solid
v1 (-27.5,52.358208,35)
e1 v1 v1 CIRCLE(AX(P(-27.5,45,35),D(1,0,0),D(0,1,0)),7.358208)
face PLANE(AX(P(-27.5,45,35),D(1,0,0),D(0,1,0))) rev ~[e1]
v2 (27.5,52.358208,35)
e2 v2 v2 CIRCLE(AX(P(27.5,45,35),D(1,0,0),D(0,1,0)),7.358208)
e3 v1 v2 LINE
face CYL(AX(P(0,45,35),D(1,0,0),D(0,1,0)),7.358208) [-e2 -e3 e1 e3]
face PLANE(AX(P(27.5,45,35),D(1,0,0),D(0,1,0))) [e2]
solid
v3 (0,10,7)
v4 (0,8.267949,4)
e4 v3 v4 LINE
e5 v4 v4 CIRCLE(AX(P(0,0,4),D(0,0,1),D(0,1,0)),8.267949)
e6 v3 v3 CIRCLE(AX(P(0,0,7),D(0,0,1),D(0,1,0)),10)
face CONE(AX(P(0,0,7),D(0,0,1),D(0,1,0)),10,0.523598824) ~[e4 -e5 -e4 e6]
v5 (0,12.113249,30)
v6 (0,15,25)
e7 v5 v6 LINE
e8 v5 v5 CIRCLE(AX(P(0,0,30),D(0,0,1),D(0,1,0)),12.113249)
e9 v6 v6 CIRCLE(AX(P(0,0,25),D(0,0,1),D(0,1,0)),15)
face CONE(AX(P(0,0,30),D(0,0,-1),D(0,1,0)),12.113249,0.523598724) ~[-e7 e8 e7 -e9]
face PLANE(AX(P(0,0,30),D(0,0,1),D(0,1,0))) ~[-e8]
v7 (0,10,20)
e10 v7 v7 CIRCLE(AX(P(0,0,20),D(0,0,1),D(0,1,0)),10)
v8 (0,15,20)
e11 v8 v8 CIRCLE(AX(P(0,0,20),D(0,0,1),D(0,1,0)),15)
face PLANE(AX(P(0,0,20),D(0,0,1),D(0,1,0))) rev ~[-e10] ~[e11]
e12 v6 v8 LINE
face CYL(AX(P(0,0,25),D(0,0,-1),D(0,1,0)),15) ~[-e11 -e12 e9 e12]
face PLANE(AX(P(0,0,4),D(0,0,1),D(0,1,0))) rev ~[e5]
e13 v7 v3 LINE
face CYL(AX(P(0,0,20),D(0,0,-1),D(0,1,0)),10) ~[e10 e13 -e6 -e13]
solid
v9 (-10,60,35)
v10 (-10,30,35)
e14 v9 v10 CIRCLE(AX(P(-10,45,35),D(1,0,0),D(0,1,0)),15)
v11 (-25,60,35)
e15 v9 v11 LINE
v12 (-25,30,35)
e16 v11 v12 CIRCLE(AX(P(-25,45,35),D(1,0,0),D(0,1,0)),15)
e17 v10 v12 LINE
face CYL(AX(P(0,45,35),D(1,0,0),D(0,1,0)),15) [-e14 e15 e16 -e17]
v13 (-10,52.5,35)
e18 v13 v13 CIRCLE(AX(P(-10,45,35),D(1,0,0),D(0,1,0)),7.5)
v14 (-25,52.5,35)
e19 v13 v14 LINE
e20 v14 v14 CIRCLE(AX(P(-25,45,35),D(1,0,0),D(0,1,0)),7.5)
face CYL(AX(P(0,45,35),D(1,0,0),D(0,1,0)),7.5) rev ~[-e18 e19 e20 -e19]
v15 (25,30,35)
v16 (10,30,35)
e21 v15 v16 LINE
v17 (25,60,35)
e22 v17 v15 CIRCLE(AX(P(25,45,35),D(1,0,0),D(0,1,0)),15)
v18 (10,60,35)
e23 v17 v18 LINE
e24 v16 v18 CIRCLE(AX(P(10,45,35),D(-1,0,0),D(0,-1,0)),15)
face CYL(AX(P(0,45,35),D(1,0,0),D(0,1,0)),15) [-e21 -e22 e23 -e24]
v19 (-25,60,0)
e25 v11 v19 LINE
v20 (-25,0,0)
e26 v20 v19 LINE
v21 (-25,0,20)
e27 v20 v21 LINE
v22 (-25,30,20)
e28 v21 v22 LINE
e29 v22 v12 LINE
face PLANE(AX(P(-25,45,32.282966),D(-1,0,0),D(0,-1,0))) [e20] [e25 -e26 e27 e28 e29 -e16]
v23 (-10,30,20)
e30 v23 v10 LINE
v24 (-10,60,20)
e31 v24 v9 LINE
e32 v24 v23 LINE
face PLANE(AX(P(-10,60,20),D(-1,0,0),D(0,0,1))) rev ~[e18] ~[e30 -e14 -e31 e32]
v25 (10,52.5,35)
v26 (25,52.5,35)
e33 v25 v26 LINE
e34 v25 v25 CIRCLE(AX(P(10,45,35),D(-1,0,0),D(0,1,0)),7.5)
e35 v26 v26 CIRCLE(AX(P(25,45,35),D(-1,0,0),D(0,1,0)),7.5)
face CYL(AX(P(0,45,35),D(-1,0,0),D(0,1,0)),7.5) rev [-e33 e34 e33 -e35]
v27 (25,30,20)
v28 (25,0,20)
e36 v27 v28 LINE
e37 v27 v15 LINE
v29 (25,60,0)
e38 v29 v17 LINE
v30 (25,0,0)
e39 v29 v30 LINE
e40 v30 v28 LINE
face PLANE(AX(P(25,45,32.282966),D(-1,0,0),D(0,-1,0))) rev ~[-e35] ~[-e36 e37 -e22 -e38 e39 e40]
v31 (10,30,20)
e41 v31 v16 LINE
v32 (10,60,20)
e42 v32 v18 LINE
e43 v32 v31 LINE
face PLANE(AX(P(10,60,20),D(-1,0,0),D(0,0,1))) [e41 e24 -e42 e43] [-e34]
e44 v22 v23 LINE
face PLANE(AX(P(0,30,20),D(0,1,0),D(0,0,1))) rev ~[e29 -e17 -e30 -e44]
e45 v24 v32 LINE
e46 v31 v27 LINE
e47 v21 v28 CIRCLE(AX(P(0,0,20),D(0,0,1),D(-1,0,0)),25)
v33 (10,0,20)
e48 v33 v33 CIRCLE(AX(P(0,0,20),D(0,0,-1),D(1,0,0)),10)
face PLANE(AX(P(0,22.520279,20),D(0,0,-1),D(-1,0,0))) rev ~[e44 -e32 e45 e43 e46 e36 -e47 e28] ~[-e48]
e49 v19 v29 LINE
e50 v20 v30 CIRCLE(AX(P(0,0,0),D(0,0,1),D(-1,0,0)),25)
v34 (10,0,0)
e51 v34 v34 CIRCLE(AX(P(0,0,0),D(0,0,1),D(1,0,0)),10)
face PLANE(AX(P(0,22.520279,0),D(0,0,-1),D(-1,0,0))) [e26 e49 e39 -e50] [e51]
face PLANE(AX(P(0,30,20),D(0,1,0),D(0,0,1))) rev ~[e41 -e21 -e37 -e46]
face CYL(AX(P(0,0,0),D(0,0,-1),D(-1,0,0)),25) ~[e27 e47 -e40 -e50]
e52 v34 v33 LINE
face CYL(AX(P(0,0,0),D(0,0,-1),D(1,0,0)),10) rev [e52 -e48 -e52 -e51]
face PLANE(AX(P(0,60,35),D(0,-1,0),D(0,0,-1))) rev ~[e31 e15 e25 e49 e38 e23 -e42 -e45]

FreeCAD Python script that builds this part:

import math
import FreeCAD as App
import Part
import Sketcher
from FreeCAD import Vector
Q = App.Units.Quantity


def add_polygon(sketch, points):
    """Adds a closed chain of lines whose ends are joined by coincident constraints."""
    first, n = sketch.GeometryCount, len(points)
    for a, b in zip(points, points[1:] + points[:1]):
        sketch.addGeometry(Part.LineSegment(App.Vector(*a, 0), App.Vector(*b, 0)), False)
    for i in range(n):
        sketch.addConstraint(Sketcher.Constraint("Coincident", first + i, 2, first + (i + 1) % n, 1))

doc = App.newDocument("Part")
params = doc.addObject("Spreadsheet::Sheet", "Params")
for row, (alias, value) in enumerate([
    ("sketch1_diameter", "20 mm"),
    ("sketch1_radius", "25 mm"),
    ("sketch1_height", "60 mm"),
    ("pad1_length", "20 mm"),
    ("sketch2_radius", "15 mm"),
    ("sketch2_height", "15 mm"),
    ("pad2_length", "50 mm"),
    ("sketch3_width", "20 mm"),
    ("sketch3_height", "30 mm"),
    ("sketch4_diameter", "15 mm"),
    ("pad3_length", "55 mm"),
    ("sketch6_width", "5 mm"),
    ("sketch6_height", "26 mm"),
    ("sketch6_height2", "13 mm"),
    ("revolution_angle", "360 deg"),
], start=1):
    params.set(f"A{row}", alias)
    params.set(f"B{row}", "=" + value)
    params.setAlias(f"B{row}", alias)

body = doc.addObject("PartDesign::Body", "Body")

# Sketch on XY plane
sketch1 = doc.addObject("Sketcher::SketchObject", "Sketch")
body.addObject(sketch1)
sketch1.AttachmentSupport = (doc.XY_Plane, [""])
sketch1.MapMode = "FlatFace"
sketch1.addGeometry(Part.LineSegment(Vector(-25, 60, 0), Vector(-25, 0, 0)), False)
sketch1.addGeometry(Part.ArcOfCircle(Part.Circle(Vector(0, 0, 0), Vector(0, 0, 1), 25), math.radians(180), math.radians(360)), False)
sketch1.addGeometry(Part.LineSegment(Vector(25, 0, 0), Vector(25, 60, 0)), False)
sketch1.addGeometry(Part.LineSegment(Vector(25, 60, 0), Vector(-25, 60, 0)), False)
sketch1.addGeometry(Part.Circle(Vector(0, 0, 0), Vector(0, 0, 1), 10), False)
sketch1.addConstraint(Sketcher.Constraint("Tangent", 0, 2, 1, 1))
sketch1.addConstraint(Sketcher.Constraint("Tangent", 1, 2, 2, 1))
sketch1.addConstraint(Sketcher.Constraint("Coincident", 2, 2, 3, 1))
sketch1.addConstraint(Sketcher.Constraint("Coincident", 3, 2, 0, 1))
sketch1.addConstraint(Sketcher.Constraint("Vertical", 0))
sketch1.addConstraint(Sketcher.Constraint("Vertical", 2))
sketch1.addConstraint(Sketcher.Constraint("Horizontal", 3))
sketch1.addConstraint(Sketcher.Constraint("Coincident", 1, 3, -1, 1))
sketch1.addConstraint(Sketcher.Constraint("Coincident", 4, 3, -1, 1))
sketch1.addConstraint(Sketcher.Constraint("Diameter", 4, 20.0))
sketch1.addConstraint(Sketcher.Constraint("Radius", 1, 25.0))
sketch1.addConstraint(Sketcher.Constraint("DistanceY", 0, 2, 0, 1, 60.0))
sketch1.setExpression("Constraints[9]", "Params.sketch1_diameter")
sketch1.setExpression("Constraints[10]", "Params.sketch1_radius")
sketch1.setExpression("Constraints[11]", "Params.sketch1_height")
pad1 = doc.addObject("PartDesign::Pad", "Pad")
body.addObject(pad1)
pad1.Profile = sketch1
pad1.setExpression("Length", "Params.pad1_length")

# Sketch on YZ plane
sketch2 = doc.addObject("Sketcher::SketchObject", "Sketch001")
body.addObject(sketch2)
sketch2.AttachmentSupport = (doc.YZ_Plane, [""])
sketch2.MapMode = "FlatFace"
sketch2.addGeometry(Part.LineSegment(Vector(30, 35, 0), Vector(30, 20, 0)), False)
sketch2.addGeometry(Part.LineSegment(Vector(30, 20, 0), Vector(60, 20, 0)), False)
sketch2.addGeometry(Part.LineSegment(Vector(60, 20, 0), Vector(60, 35, 0)), False)
sketch2.addGeometry(Part.ArcOfCircle(Part.Circle(Vector(45, 35, 0), Vector(0, 0, 1), 15), math.radians(0), math.radians(180)), False)
sketch2.addConstraint(Sketcher.Constraint("Coincident", 0, 2, 1, 1))
sketch2.addConstraint(Sketcher.Constraint("Coincident", 1, 2, 2, 1))
sketch2.addConstraint(Sketcher.Constraint("Tangent", 2, 2, 3, 1))
sketch2.addConstraint(Sketcher.Constraint("Tangent", 3, 2, 0, 1))
sketch2.addConstraint(Sketcher.Constraint("Vertical", 0))
sketch2.addConstraint(Sketcher.Constraint("Horizontal", 1))
sketch2.addConstraint(Sketcher.Constraint("Vertical", 2))
sketch2.addConstraint(Sketcher.Constraint("Radius", 3, 15.0))
sketch2.addConstraint(Sketcher.Constraint("DistanceY", 0, 2, 0, 1, 15.0))
sketch2.addConstraint(Sketcher.Constraint("DistanceX", -1, 1, 3, 3, 45.0))
sketch2.addConstraint(Sketcher.Constraint("DistanceY", -1, 1, 3, 3, 35.0))
sketch2.setExpression("Constraints[7]", "Params.sketch2_radius")
sketch2.setExpression("Constraints[8]", "Params.sketch2_height")
pad2 = doc.addObject("PartDesign::Pad", "Pad001")
body.addObject(pad2)
pad2.Profile = sketch2
pad2.setExpression("Length", "Params.pad2_length")
pad2.Midplane = True

# Sketch on XZ plane
sketch3 = doc.addObject("Sketcher::SketchObject", "Sketch002")
body.addObject(sketch3)
sketch3.AttachmentSupport = (doc.XZ_Plane, [""])
sketch3.MapMode = "FlatFace"
sketch3.AttachmentOffset = App.Placement(Vector(0, 0, -60), App.Rotation())
add_polygon(sketch3, [(-10, 50), (-10, 20), (10, 20), (10, 50)])  # lines 0-3
sketch3.addConstraint(Sketcher.Constraint("Vertical", 0))
sketch3.addConstraint(Sketcher.Constraint("Horizontal", 1))
sketch3.addConstraint(Sketcher.Constraint("Vertical", 2))
sketch3.addConstraint(Sketcher.Constraint("Horizontal", 3))
sketch3.addConstraint(Sketcher.Constraint("DistanceX", 1, 1, 1, 2, 20.0))
sketch3.addConstraint(Sketcher.Constraint("DistanceY", 0, 2, 0, 1, 30.0))
sketch3.addConstraint(Sketcher.Constraint("DistanceX", 0, 2, -1, 1, 10.0))
sketch3.addConstraint(Sketcher.Constraint("DistanceY", -1, 1, 0, 2, 20.0))
sketch3.setExpression("Constraints[8]", "Params.sketch3_width")
sketch3.setExpression("Constraints[9]", "Params.sketch3_height")
pocket1 = doc.addObject("PartDesign::Pocket", "Pocket")
body.addObject(pocket1)
pocket1.Profile = sketch3
pocket1.Type = "ThroughAll"
pocket1.Reversed = True

# Sketch on YZ plane
sketch4 = doc.addObject("Sketcher::SketchObject", "Sketch003")
body.addObject(sketch4)
sketch4.AttachmentSupport = (doc.YZ_Plane, [""])
sketch4.MapMode = "FlatFace"
sketch4.addGeometry(Part.Circle(Vector(45, 35, 0), Vector(0, 0, 1), 8), False)
sketch4.addConstraint(Sketcher.Constraint("Diameter", 0, 15.0))
sketch4.addConstraint(Sketcher.Constraint("DistanceX", -1, 1, 0, 3, 45.0))
sketch4.addConstraint(Sketcher.Constraint("DistanceY", -1, 1, 0, 3, 35.0))
sketch4.setExpression("Constraints[0]", "Params.sketch4_diameter")
pocket2 = doc.addObject("PartDesign::Pocket", "Pocket001")
body.addObject(pocket2)
pocket2.Profile = sketch4
pocket2.Type = "ThroughAll"
pocket2.Midplane = True
body2 = doc.addObject("PartDesign::Body", "Body001")

# Sketch on YZ plane
sketch5 = doc.addObject("Sketcher::SketchObject", "Sketch004")
body2.addObject(sketch5)
sketch5.AttachmentSupport = (doc.getObject("YZ_Plane001"), [""])
sketch5.MapMode = "FlatFace"
sketch5.addGeometry(Part.Circle(Vector(45, 35, 0), Vector(0, 0, 1), 7), False)
sketch5.addConstraint(Sketcher.Constraint("DistanceX", -1, 1, 0, 3, 45.0))
sketch5.addConstraint(Sketcher.Constraint("DistanceY", -1, 1, 0, 3, 35.0))
sketch5.addConstraint(Sketcher.Constraint("Diameter", 0, 14.716416))
pad3 = doc.addObject("PartDesign::Pad", "Pad002")
body2.addObject(pad3)
pad3.Profile = sketch5
pad3.setExpression("Length", "Params.pad3_length")
pad3.Midplane = True
body3 = doc.addObject("PartDesign::Body", "Body002")

# Sketch on YZ plane
sketch6 = doc.addObject("Sketcher::SketchObject", "Sketch005")
body3.addObject(sketch6)
sketch6.AttachmentSupport = (doc.getObject("YZ_Plane002"), [""])
sketch6.MapMode = "FlatFace"
add_polygon(sketch6, [(12.1, 30), (0, 30), (0, 4), (8.3, 4), (10, 7), (10, 20), (15, 20), (15, 25)])  # lines 0-7
sketch6.addConstraint(Sketcher.Constraint("Horizontal", 0))
sketch6.addConstraint(Sketcher.Constraint("Vertical", 1))
sketch6.addConstraint(Sketcher.Constraint("Horizontal", 2))
sketch6.addConstraint(Sketcher.Constraint("Vertical", 4))
sketch6.addConstraint(Sketcher.Constraint("Horizontal", 5))
sketch6.addConstraint(Sketcher.Constraint("Vertical", 6))
sketch6.addConstraint(Sketcher.Constraint("PointOnObject", 0, 2, -2))
sketch6.addConstraint(Sketcher.Constraint("Equal", 5, 6))
sketch6.addConstraint(Sketcher.Constraint("DistanceX", 5, 1, 5, 2, 5.0))
sketch6.addConstraint(Sketcher.Constraint("DistanceY", 1, 2, 1, 1, 26.0))
sketch6.addConstraint(Sketcher.Constraint("DistanceY", 4, 1, 4, 2, 13.0))
sketch6.addConstraint(Sketcher.Constraint("Angle", 3, Q("59.999997 deg")))
sketch6.addConstraint(Sketcher.Constraint("Angle", 7, Q("119.999997 deg")))
sketch6.addConstraint(Sketcher.Constraint("DistanceY", -1, 1, 0, 2, 30.0))
sketch6.addConstraint(Sketcher.Constraint("DistanceX", -1, 1, 3, 2, 10.0))
sketch6.addConstraint(Sketcher.Constraint("DistanceY", -1, 1, 3, 2, 7.0))
sketch6.setExpression("Constraints[16]", "Params.sketch6_width")
sketch6.setExpression("Constraints[17]", "Params.sketch6_height")
sketch6.setExpression("Constraints[18]", "Params.sketch6_height2")
revolution = doc.addObject("PartDesign::Revolution", "Revolution")
body3.addObject(revolution)
revolution.Profile = sketch6
revolution.ReferenceAxis = (sketch6, ["V_Axis"])
revolution.setExpression("Angle", "Params.revolution_angle")

doc.recompute()
